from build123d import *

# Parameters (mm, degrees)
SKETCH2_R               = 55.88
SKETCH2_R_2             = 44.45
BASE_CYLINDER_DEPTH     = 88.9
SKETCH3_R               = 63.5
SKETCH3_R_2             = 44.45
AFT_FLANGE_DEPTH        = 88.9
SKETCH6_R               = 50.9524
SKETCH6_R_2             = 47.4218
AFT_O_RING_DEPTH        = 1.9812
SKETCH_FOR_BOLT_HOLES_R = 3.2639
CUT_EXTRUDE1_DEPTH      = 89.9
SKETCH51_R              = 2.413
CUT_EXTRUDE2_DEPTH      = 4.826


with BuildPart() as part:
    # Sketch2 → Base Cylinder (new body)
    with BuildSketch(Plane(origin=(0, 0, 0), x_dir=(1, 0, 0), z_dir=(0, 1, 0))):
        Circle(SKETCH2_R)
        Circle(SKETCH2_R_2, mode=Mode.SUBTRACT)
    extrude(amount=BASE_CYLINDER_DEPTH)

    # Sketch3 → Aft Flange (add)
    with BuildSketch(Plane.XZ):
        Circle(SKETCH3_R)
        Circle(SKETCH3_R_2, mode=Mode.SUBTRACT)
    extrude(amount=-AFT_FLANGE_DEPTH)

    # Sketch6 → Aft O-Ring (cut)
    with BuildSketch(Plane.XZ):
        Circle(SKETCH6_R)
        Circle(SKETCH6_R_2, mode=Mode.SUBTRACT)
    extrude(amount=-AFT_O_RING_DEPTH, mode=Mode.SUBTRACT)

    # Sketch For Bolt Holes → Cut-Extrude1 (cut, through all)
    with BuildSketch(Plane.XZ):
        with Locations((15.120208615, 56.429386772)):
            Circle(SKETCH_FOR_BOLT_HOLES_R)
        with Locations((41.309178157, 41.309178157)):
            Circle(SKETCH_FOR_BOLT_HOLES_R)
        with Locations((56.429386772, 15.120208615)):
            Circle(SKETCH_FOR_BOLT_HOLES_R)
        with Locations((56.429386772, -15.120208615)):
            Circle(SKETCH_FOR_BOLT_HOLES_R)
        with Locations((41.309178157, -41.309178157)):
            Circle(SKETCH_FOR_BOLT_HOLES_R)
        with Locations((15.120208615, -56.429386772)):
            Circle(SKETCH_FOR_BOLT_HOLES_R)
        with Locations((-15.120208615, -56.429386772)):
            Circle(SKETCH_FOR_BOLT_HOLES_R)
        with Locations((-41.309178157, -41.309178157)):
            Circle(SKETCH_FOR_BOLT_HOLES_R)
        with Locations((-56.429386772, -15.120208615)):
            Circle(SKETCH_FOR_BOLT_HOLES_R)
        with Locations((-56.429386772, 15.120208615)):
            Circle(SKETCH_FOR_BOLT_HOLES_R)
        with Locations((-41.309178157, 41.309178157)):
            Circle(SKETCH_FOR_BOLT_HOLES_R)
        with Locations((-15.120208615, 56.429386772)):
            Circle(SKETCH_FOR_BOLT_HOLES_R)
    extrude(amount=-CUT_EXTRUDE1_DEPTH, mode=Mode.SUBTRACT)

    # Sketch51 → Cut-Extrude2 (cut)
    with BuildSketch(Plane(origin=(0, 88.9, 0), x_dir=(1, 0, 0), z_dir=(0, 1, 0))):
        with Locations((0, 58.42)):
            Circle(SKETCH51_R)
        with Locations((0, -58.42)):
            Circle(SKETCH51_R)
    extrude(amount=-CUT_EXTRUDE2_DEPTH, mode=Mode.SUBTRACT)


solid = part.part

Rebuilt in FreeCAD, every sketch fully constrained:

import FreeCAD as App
import Part
import Sketcher
Q = App.Units.Quantity

doc = App.newDocument("Part")
body = doc.addObject("PartDesign::Body", "Body")

# Sketch on XZ plane
sketch1 = body.newObject("Sketcher::SketchObject", "Sketch")
sketch1.AttachmentSupport = (doc.getObject("XZ_Plane"), [""])
sketch1.MapMode = "FlatFace"
sketch1.addGeometry([
    Part.Circle(App.Vector(0, 0, 0), App.Vector(0, 0, 1), 56),
    Part.Circle(App.Vector(0, 0, 0), App.Vector(0, 0, 1), 44),
], False)
sketch1.addConstraint([
    Sketcher.Constraint("Coincident", 0, 3, -1, 1),
    Sketcher.Constraint("Coincident", 1, 3, -1, 1),
    Sketcher.Constraint("Diameter", 0, Q("4.4 in")),
    Sketcher.Constraint("Diameter", 1, Q("3.5 in")),
])
pad1 = body.newObject("PartDesign::Pad", "Pad")
pad1.Profile = sketch1
pad1.Length = Q("3.5 in")
pad1.Reversed = True

# Sketch on XZ plane
sketch2 = body.newObject("Sketcher::SketchObject", "Sketch001")
sketch2.AttachmentSupport = (doc.getObject("XZ_Plane"), [""])
sketch2.MapMode = "FlatFace"
sketch2.addGeometry([
    Part.Circle(App.Vector(0, 0, 0), App.Vector(0, 0, 1), 64),
    Part.Circle(App.Vector(0, 0, 0), App.Vector(0, 0, 1), 44),
], False)
sketch2.addConstraint([
    Sketcher.Constraint("Coincident", 0, 3, -1, 1),
    Sketcher.Constraint("Coincident", 1, 3, -1, 1),
    Sketcher.Constraint("Diameter", 0, Q("5 in")),
    Sketcher.Constraint("Diameter", 1, Q("3.5 in")),
])
pad2 = body.newObject("PartDesign::Pad", "Pad001")
pad2.Profile = sketch2
pad2.Length = Q("3.5 in")
pad2.Reversed = True

# Sketch on XZ plane
sketch3 = body.newObject("Sketcher::SketchObject", "Sketch002")
sketch3.AttachmentSupport = (doc.getObject("XZ_Plane"), [""])
sketch3.MapMode = "FlatFace"
sketch3.addGeometry([
    Part.Circle(App.Vector(0, 0, 0), App.Vector(0, 0, 1), 51),
    Part.Circle(App.Vector(0, 0, 0), App.Vector(0, 0, 1), 47),
], False)
sketch3.addConstraint([
    Sketcher.Constraint("Coincident", 0, 3, -1, 1),
    Sketcher.Constraint("Coincident", 1, 3, -1, 1),
    Sketcher.Constraint("Diameter", 0, Q("4.012 in")),
    Sketcher.Constraint("Diameter", 1, Q("3.734 in")),
])
pocket1 = body.newObject("PartDesign::Pocket", "Pocket")
pocket1.Profile = sketch3
pocket1.Length = Q("0.078 in")

# Sketch on XZ plane
sketch4 = body.newObject("Sketcher::SketchObject", "Sketch003")
sketch4.AttachmentSupport = (doc.getObject("XZ_Plane"), [""])
sketch4.MapMode = "FlatFace"
sketch4.addGeometry([
    Part.Circle(App.Vector(15.1, 56.4, 0), App.Vector(0, 0, 1), 3.3),  # 0
    Part.Circle(App.Vector(41.3, 41.3, 0), App.Vector(0, 0, 1), 3.3),  # 1
    Part.Circle(App.Vector(56.4, 15.1, 0), App.Vector(0, 0, 1), 3.3),  # 2
    Part.Circle(App.Vector(56.4, -15.1, 0), App.Vector(0, 0, 1), 3.3),  # 3
    Part.Circle(App.Vector(41.3, -41.3, 0), App.Vector(0, 0, 1), 3.3),  # 4
    Part.Circle(App.Vector(15.1, -56.4, 0), App.Vector(0, 0, 1), 3.3),  # 5
    Part.Circle(App.Vector(-15.1, -56.4, 0), App.Vector(0, 0, 1), 3.3),  # 6
    Part.Circle(App.Vector(-41.3, -41.3, 0), App.Vector(0, 0, 1), 3.3),  # 7
    Part.Circle(App.Vector(-56.4, -15.1, 0), App.Vector(0, 0, 1), 3.3),  # 8
    Part.Circle(App.Vector(-56.4, 15.1, 0), App.Vector(0, 0, 1), 3.3),  # 9
    Part.Circle(App.Vector(-41.3, 41.3, 0), App.Vector(0, 0, 1), 3.3),  # 10
    Part.Circle(App.Vector(-15.1, 56.4, 0), App.Vector(0, 0, 1), 3.3),  # 11
], False)
sketch4.addConstraint([
    Sketcher.Constraint("Equal", 0, 1),
    Sketcher.Constraint("Equal", 1, 2),
    Sketcher.Constraint("Equal", 2, 3),
    Sketcher.Constraint("Equal", 3, 4),
    Sketcher.Constraint("Equal", 4, 5),
    Sketcher.Constraint("Equal", 5, 6),
    Sketcher.Constraint("Equal", 6, 7),
    Sketcher.Constraint("Equal", 7, 8),
    Sketcher.Constraint("Equal", 8, 9),
    Sketcher.Constraint("Equal", 9, 10),
    Sketcher.Constraint("Equal", 10, 11),
    Sketcher.Constraint("Symmetric", 0, 3, 6, 3, -1, 1),
    Sketcher.Constraint("Symmetric", 1, 3, 7, 3, -1, 1),
    Sketcher.Constraint("Symmetric", 2, 3, 8, 3, -1, 1),
    Sketcher.Constraint("Symmetric", 3, 3, 9, 3, -1, 1),
    Sketcher.Constraint("Symmetric", 4, 3, 10, 3, -1, 1),
    Sketcher.Constraint("Symmetric", 5, 3, 11, 3, -1, 1),
    Sketcher.Constraint("Symmetric", 5, 3, 6, 3, -2),
    Sketcher.Constraint("Symmetric", 4, 3, 7, 3, -2),
    Sketcher.Constraint("Symmetric", 3, 3, 8, 3, -2),
    Sketcher.Constraint("Diameter", 0, Q("0.257 in")),
    Sketcher.Constraint("DistanceX", -1, 1, 0, 3, 15.120209),
    Sketcher.Constraint("DistanceX", -1, 1, 1, 3, 41.309178),
    Sketcher.Constraint("DistanceY", -1, 1, 1, 3, 41.309178),
    Sketcher.Constraint("DistanceY", -1, 1, 2, 3, 15.120209),
    Sketcher.Constraint("DistanceY", 1, 3, 0, 3, 15.120209),
    Sketcher.Constraint("DistanceX", 1, 3, 2, 3, 15.120209),
])
pocket2 = body.newObject("PartDesign::Pocket", "Pocket001")
pocket2.Profile = sketch4
pocket2.Type = "ThroughAll"

# Sketch on XZ plane
sketch5 = body.newObject("Sketcher::SketchObject", "Sketch004")
sketch5.AttachmentSupport = (doc.getObject("XZ_Plane"), [""])
sketch5.MapMode = "FlatFace"
sketch5.AttachmentOffset = App.Placement(App.Vector(0, 0, -3.5 * 25.4), App.Rotation())
sketch5.addGeometry([
    Part.Circle(App.Vector(0, -58.4, 0), App.Vector(0, 0, 1), 2.4),
    Part.Circle(App.Vector(0, 58.4, 0), App.Vector(0, 0, 1), 2.4),
], False)
sketch5.addConstraint([
    Sketcher.Constraint("Equal", 0, 1),
    Sketcher.Constraint("Symmetric", 0, 3, 1, 3, -1, 1),
    Sketcher.Constraint("PointOnObject", 0, 3, -2),
    Sketcher.Constraint("Diameter", 0, Q("0.19 in")),
    Sketcher.Constraint("DistanceY", 0, 3, -1, 1, Q("2.3 in")),
])
pocket3 = body.newObject("PartDesign::Pocket", "Pocket002")
pocket3.Profile = sketch5
pocket3.Length = Q("0.19 in")
pocket3.Reversed = True

doc.recompute()
